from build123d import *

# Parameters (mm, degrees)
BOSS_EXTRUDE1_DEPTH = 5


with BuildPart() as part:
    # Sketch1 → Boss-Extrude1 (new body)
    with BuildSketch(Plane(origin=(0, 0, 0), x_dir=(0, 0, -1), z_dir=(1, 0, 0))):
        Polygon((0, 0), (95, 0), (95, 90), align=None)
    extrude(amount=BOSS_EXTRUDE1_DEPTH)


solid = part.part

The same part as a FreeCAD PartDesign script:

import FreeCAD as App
import Part
import Sketcher

V = App.Vector


def add_polygon(sketch, points):
    """Adds a closed chain of lines whose ends are joined by coincident constraints."""
    first, n = sketch.GeometryCount, len(points)
    for a, b in zip(points, points[1:] + points[:1]):
        sketch.addGeometry(Part.LineSegment(App.Vector(*a, 0), App.Vector(*b, 0)), False)
    for i in range(n):
        sketch.addConstraint(Sketcher.Constraint("Coincident", first + i, 2, first + (i + 1) % n, 1))

doc = App.newDocument("Part")
body = doc.addObject("PartDesign::Body", "Body")

# Sketch on YZ plane
sketch1 = body.newObject("Sketcher::SketchObject", "Sketch")
sketch1.AttachmentSupport = (doc.getObject("YZ_Plane"), [""])
sketch1.MapMode = "FlatFace"
add_polygon(sketch1, [(0, 0), (0, -95), (90, -95)])  # lines 0-2
sketch1.addConstraint([
    Sketcher.Constraint("Vertical", 0),
    Sketcher.Constraint("Horizontal", 1),
    Sketcher.Constraint("Coincident", 2, 2, -1, 1),
    Sketcher.Constraint("DistanceX", 1, 1, 1, 2, 90.0),
    Sketcher.Constraint("DistanceY", 0, 2, 0, 1, 95.0),
])
pad1 = body.newObject("PartDesign::Pad", "Pad")
pad1.Profile = sketch1
pad1.Length = 5

doc.recompute()
